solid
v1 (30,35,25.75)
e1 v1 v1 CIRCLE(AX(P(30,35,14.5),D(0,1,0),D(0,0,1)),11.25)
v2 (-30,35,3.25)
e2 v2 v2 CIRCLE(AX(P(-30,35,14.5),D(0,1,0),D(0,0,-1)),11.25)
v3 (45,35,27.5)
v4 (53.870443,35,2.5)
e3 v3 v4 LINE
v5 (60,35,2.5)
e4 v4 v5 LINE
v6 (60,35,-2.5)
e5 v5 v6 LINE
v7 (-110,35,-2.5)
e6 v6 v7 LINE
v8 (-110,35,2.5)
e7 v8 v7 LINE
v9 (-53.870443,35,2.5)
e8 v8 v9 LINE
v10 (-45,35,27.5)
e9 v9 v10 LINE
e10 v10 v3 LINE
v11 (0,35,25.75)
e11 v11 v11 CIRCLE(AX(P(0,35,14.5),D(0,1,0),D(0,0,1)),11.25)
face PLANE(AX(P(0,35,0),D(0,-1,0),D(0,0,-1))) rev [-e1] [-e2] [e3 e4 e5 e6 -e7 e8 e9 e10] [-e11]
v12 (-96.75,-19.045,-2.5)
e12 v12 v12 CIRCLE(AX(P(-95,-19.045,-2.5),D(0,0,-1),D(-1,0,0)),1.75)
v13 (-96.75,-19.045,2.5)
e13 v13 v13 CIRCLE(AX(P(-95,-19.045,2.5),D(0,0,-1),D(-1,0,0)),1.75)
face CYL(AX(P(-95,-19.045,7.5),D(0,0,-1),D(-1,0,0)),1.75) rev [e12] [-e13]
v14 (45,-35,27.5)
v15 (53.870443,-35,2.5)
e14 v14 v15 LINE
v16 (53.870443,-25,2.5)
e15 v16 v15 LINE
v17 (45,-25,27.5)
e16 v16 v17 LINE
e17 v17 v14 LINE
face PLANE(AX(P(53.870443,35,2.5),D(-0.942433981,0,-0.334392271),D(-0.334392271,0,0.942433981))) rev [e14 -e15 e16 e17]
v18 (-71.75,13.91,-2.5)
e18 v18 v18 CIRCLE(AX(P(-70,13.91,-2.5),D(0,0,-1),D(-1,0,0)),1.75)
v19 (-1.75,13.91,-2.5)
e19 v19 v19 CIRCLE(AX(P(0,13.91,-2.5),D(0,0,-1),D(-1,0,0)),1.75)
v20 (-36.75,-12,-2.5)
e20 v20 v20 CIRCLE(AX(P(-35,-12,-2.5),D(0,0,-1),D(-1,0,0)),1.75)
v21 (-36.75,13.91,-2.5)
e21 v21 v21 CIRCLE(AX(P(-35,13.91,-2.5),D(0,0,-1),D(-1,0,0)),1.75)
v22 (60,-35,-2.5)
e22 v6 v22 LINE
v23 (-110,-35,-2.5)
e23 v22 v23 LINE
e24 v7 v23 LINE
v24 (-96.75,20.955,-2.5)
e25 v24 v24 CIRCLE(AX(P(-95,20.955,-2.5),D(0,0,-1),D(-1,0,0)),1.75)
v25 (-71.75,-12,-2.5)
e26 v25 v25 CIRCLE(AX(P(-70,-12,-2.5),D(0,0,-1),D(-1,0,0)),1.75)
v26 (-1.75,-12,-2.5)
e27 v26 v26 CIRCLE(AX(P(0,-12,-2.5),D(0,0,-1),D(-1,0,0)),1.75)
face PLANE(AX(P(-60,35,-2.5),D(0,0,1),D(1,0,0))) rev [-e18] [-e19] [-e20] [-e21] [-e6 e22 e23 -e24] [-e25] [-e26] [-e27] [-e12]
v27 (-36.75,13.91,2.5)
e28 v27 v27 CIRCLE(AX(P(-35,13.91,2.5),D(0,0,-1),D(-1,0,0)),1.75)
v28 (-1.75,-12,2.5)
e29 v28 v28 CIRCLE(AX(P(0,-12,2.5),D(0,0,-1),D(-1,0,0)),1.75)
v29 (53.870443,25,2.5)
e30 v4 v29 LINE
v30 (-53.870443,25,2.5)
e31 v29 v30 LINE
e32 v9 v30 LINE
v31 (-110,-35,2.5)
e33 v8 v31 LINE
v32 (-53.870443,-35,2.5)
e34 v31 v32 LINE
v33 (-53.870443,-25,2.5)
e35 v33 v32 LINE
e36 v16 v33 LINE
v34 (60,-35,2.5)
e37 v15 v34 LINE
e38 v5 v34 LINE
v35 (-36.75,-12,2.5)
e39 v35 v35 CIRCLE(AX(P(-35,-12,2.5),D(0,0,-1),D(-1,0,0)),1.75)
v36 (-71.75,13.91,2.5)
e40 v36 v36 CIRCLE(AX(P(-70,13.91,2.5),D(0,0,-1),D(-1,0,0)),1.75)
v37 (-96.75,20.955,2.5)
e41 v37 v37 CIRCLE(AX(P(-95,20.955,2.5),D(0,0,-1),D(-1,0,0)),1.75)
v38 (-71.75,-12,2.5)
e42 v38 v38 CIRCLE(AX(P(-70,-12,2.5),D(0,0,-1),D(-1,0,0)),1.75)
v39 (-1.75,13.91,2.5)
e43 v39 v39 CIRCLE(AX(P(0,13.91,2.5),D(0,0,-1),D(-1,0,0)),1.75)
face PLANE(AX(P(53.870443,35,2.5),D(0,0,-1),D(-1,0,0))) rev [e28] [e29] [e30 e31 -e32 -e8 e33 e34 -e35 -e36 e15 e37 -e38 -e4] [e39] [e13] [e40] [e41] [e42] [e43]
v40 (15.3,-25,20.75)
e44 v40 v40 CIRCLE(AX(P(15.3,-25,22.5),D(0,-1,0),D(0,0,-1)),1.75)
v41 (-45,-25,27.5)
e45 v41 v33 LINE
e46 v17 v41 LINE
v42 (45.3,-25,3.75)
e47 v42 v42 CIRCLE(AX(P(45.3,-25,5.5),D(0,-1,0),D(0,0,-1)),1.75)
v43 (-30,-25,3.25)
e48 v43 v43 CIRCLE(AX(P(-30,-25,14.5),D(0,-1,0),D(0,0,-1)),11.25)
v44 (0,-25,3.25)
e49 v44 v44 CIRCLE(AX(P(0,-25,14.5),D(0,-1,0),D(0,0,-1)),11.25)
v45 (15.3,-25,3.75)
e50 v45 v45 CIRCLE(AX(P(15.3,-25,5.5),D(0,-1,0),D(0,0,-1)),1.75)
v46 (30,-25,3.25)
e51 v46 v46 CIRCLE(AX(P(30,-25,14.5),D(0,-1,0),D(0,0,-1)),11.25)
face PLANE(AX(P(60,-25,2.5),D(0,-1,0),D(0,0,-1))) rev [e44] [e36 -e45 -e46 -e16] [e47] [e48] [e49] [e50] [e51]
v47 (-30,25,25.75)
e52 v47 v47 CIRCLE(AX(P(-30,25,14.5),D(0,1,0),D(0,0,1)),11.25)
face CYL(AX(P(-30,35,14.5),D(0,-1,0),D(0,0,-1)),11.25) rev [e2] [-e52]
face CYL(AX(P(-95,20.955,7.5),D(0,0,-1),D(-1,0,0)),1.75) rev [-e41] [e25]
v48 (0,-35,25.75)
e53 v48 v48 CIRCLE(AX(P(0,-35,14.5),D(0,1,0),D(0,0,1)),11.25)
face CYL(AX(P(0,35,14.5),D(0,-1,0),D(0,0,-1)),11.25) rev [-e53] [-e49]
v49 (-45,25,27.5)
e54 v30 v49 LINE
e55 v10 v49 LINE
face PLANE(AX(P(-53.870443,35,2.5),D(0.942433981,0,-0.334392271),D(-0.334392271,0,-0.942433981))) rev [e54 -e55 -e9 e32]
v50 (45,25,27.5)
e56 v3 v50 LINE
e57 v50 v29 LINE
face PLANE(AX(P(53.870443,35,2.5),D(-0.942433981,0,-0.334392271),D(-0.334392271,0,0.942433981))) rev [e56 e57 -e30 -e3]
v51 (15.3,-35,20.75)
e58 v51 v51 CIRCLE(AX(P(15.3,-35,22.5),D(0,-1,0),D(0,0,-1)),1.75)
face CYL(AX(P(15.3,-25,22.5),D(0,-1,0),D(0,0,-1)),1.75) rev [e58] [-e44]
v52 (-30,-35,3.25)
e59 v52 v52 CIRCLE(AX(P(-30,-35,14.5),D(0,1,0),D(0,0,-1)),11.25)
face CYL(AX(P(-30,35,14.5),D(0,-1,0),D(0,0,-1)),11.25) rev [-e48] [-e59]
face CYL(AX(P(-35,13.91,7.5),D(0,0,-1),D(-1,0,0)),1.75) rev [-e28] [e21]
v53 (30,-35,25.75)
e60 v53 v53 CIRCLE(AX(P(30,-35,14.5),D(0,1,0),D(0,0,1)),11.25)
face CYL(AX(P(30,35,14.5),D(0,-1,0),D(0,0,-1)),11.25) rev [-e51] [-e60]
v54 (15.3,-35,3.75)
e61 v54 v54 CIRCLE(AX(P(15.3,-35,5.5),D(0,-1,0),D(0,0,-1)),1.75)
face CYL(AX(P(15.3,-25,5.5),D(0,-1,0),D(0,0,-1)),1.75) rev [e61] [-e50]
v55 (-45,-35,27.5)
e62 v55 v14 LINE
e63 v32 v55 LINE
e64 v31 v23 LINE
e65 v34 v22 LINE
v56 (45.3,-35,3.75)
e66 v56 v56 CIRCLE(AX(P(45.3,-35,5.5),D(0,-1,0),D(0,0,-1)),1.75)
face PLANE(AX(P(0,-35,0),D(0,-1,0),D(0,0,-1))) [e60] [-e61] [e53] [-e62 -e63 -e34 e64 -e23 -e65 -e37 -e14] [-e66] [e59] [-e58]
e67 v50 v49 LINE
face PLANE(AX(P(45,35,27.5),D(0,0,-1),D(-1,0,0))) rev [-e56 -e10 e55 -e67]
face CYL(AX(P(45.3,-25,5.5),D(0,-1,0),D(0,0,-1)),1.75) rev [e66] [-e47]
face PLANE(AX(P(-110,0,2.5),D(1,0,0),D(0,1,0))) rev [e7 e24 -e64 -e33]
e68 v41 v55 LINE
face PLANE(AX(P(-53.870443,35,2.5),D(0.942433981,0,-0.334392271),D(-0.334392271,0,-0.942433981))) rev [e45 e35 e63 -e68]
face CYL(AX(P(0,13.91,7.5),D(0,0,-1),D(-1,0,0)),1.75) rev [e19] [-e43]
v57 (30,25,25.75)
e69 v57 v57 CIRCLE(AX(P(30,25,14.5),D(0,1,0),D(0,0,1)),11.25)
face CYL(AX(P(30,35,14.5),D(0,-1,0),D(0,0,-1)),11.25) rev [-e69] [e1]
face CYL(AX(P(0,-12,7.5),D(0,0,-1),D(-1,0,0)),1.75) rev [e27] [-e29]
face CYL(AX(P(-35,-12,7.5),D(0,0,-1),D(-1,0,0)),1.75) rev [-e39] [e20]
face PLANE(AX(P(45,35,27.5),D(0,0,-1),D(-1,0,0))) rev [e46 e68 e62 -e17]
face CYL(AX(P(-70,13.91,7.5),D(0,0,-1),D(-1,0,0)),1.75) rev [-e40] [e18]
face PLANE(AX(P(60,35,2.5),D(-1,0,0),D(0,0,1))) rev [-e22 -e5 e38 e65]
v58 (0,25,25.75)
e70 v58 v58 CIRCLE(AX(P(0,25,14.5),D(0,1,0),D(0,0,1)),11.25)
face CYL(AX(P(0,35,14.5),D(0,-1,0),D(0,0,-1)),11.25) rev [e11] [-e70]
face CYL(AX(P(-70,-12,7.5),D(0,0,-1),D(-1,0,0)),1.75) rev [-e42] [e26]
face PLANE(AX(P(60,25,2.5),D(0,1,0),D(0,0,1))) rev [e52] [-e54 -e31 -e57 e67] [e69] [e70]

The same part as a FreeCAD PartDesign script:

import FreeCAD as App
import Part
import Sketcher
Q = App.Units.Quantity


def add_polygon(sketch, points):
    """Adds a closed chain of lines whose ends are joined by coincident constraints."""
    first, n = sketch.GeometryCount, len(points)
    for a, b in zip(points, points[1:] + points[:1]):
        sketch.addGeometry(Part.LineSegment(App.Vector(*a, 0), App.Vector(*b, 0)), False)
    for i in range(n):
        sketch.addConstraint(Sketcher.Constraint("Coincident", first + i, 2, first + (i + 1) % n, 1))

doc = App.newDocument("Part")
body = doc.addObject("PartDesign::Body", "Body")

# Sketch on XZ plane
sketch1 = body.newObject("Sketcher::SketchObject", "Sketch")
sketch1.AttachmentSupport = (doc.getObject("XZ_Plane"), [""])
sketch1.MapMode = "FlatFace"
add_polygon(sketch1, [(-54, 2), (-45, 28), (45, 28), (54, 2), (60, 2), (60, -2), (-80, -2), (-80, 2)])  # lines 0-7
sketch1.addGeometry(Part.Circle(App.Vector(-30, 14, 0), App.Vector(0, 0, 1), 11), False)  # 8
sketch1.addGeometry(Part.Circle(App.Vector(0, 14, 0), App.Vector(0, 0, 1), 11), False)  # 9
sketch1.addGeometry(Part.Circle(App.Vector(30, 14, 0), App.Vector(0, 0, 1), 11), False)  # 10
sketch1.addConstraint([
    Sketcher.Constraint("Horizontal", 1),
    Sketcher.Constraint("Horizontal", 3),
    Sketcher.Constraint("Vertical", 4),
    Sketcher.Constraint("Horizontal", 5),
    Sketcher.Constraint("Vertical", 6),
    Sketcher.Constraint("Horizontal", 7),
    Sketcher.Constraint("Equal", 8, 9),
    Sketcher.Constraint("Equal", 9, 10),
    Sketcher.Constraint("Symmetric", 8, 3, 10, 3, -2),
    Sketcher.Constraint("Symmetric", 2, 2, 7, 2, -2),
    Sketcher.Constraint("PointOnObject", 9, 3, -2),
    Sketcher.Constraint("Horizontal", 8, 3, 9, 3),
    Sketcher.Constraint("Equal", 0, 2),
    Sketcher.Constraint("Diameter", 8, Q("22.5 mm")),
    Sketcher.Constraint("DistanceX", 1, 1, 1, 2, Q("90 mm")),
    Sketcher.Constraint("DistanceX", 5, 2, 5, 1, Q("140 mm")),
    Sketcher.Constraint("DistanceY", 4, 2, 4, 1, Q("5 mm")),
    Sketcher.Constraint("DistanceX", 8, 3, -1, 1, Q("30 mm")),
    Sketcher.Constraint("DistanceX", -1, 1, 3, 2, Q("60 mm")),
    Sketcher.Constraint("DistanceY", 8, 3, 0, 2, Q("13 mm")),
    Sketcher.Constraint("DistanceY", 2, 2, 1, 2, Q("25 mm")),
    Sketcher.Constraint("DistanceY", -1, 1, 8, 3, Q("14.5 mm")),
    Sketcher.Constraint("DistanceX", 3, 1, 3, 2, Q("6.129557 mm")),
])
pad1 = body.newObject("PartDesign::Pad", "Pad")
pad1.Profile = sketch1
pad1.Length = 70
pad1.Midplane = True

# Sketch on YZ plane
sketch2 = body.newObject("Sketcher::SketchObject", "Sketch001")
sketch2.AttachmentSupport = (doc.getObject("YZ_Plane"), [""])
sketch2.MapMode = "FlatFace"
sketch2.AttachmentOffset = App.Placement(App.Vector(0, 0, -80), App.Rotation())
add_polygon(sketch2, [(25, 2), (-25, 2), (-25, 28), (25, 28)])  # lines 0-3
sketch2.addConstraint([
    Sketcher.Constraint("Horizontal", 0),
    Sketcher.Constraint("Vertical", 1),
    Sketcher.Constraint("Horizontal", 2),
    Sketcher.Constraint("Vertical", 3),
    Sketcher.Constraint("DistanceX", 0, 2, 0, 1, Q("50 mm")),
    Sketcher.Constraint("DistanceY", 1, 1, 1, 2, Q("25 mm")),
    Sketcher.Constraint("DistanceX", 0, 2, -1, 1, Q("25 mm")),
    Sketcher.Constraint("DistanceY", -1, 1, 0, 2, Q("2.5 mm")),
])
pocket1 = body.newObject("PartDesign::Pocket", "Pocket")
pocket1.Profile = sketch2
pocket1.Type = "ThroughAll"
pocket1.Reversed = True

# Sketch on XY plane
sketch3 = body.newObject("Sketcher::SketchObject", "Sketch002")
sketch3.AttachmentSupport = (doc.getObject("XY_Plane"), [""])
sketch3.MapMode = "FlatFace"
sketch3.AttachmentOffset = App.Placement(App.Vector(0, 0, -2.5), App.Rotation())
add_polygon(sketch3, [(-80, 35), (-80, -35), (-110, -35), (-110, 35)])  # lines 0-3
sketch3.addConstraint([
    Sketcher.Constraint("Vertical", 0),
    Sketcher.Constraint("Horizontal", 1),
    Sketcher.Constraint("Vertical", 2),
    Sketcher.Constraint("Horizontal", 3),
    Sketcher.Constraint("DistanceX", 1, 2, 1, 1, Q("30 mm")),
    Sketcher.Constraint("DistanceY", 0, 2, 0, 1, Q("70 mm")),
    Sketcher.Constraint("DistanceX", 0, 2, -1, 1, Q("80 mm")),
    Sketcher.Constraint("DistanceY", 0, 2, -1, 1, Q("35 mm")),
])
pad2 = body.newObject("PartDesign::Pad", "Pad001")
pad2.Profile = sketch3
pad2.Length = 5

# Sketch on XZ plane
sketch4 = body.newObject("Sketcher::SketchObject", "Sketch003")
sketch4.AttachmentSupport = (doc.getObject("XZ_Plane"), [""])
sketch4.MapMode = "FlatFace"
sketch4.AttachmentOffset = App.Placement(App.Vector(0, 0, 35), App.Rotation())
sketch4.addGeometry([
    Part.Circle(App.Vector(45.3, 5.5, 0), App.Vector(0, 0, 1), 1.8),
    Part.Circle(App.Vector(15.3, 22.5, 0), App.Vector(0, 0, 1), 1.8),
    Part.Circle(App.Vector(15.3, 5.5, 0), App.Vector(0, 0, 1), 1.8),
], False)
sketch4.addConstraint([
    Sketcher.Constraint("Equal", 0, 1),
    Sketcher.Constraint("Equal", 1, 2),
    Sketcher.Constraint("Horizontal", 0, 3, 2, 3),
    Sketcher.Constraint("Vertical", 1, 3, 2, 3),
    Sketcher.Constraint("Diameter", 0, Q("3.5 mm")),
    Sketcher.Constraint("DistanceX", 1, 3, 0, 3, Q("30 mm")),
    Sketcher.Constraint("DistanceY", 0, 3, 1, 3, Q("17 mm")),
    Sketcher.Constraint("DistanceX", -1, 1, 0, 3, Q("45.3 mm")),
    Sketcher.Constraint("DistanceY", -1, 1, 0, 3, Q("5.5 mm")),
])
pocket2 = body.newObject("PartDesign::Pocket", "Pocket001")
pocket2.Profile = sketch4
pocket2.Length = 10

# Sketch on XY plane
sketch5 = body.newObject("Sketcher::SketchObject", "Sketch004")
sketch5.AttachmentSupport = (doc.getObject("XY_Plane"), [""])
sketch5.MapMode = "FlatFace"
sketch5.AttachmentOffset = App.Placement(App.Vector(0, 0, -2.5), App.Rotation())
sketch5.addGeometry([
    Part.Circle(App.Vector(0, -12, 0), App.Vector(0, 0, 1), 1.8),  # 0
    Part.Circle(App.Vector(-35, -12, 0), App.Vector(0, 0, 1), 1.8),  # 1
    Part.Circle(App.Vector(-70, -12, 0), App.Vector(0, 0, 1), 1.8),  # 2
    Part.Circle(App.Vector(-35, 13.9, 0), App.Vector(0, 0, 1), 1.8),  # 3
    Part.Circle(App.Vector(-70, 13.9, 0), App.Vector(0, 0, 1), 1.8),  # 4
    Part.Circle(App.Vector(0, 13.9, 0), App.Vector(0, 0, 1), 1.8),  # 5
    Part.Circle(App.Vector(-95, 21, 0), App.Vector(0, 0, 1), 1.8),  # 6
    Part.Circle(App.Vector(-95, -19, 0), App.Vector(0, 0, 1), 1.8),  # 7
], False)
sketch5.addConstraint([
    Sketcher.Constraint("Equal", 0, 1),
    Sketcher.Constraint("Equal", 1, 2),
    Sketcher.Constraint("Equal", 2, 3),
    Sketcher.Constraint("Equal", 3, 4),
    Sketcher.Constraint("Equal", 4, 5),
    Sketcher.Constraint("Equal", 5, 6),
    Sketcher.Constraint("Equal", 6, 7),
    Sketcher.Constraint("PointOnObject", 0, 3, -2),
    Sketcher.Constraint("PointOnObject", 5, 3, -2),
    Sketcher.Constraint("Horizontal", 0, 3, 1, 3),
    Sketcher.Constraint("Horizontal", 1, 3, 2, 3),
    Sketcher.Constraint("Horizontal", 3, 3, 4, 3),
    Sketcher.Constraint("Horizontal", 4, 3, 5, 3),
    Sketcher.Constraint("Vertical", 1, 3, 3, 3),
    Sketcher.Constraint("Vertical", 2, 3, 4, 3),
    Sketcher.Constraint("Vertical", 6, 3, 7, 3),
    Sketcher.Constraint("Diameter", 0, Q("3.5 mm")),
    Sketcher.Constraint("DistanceY", 0, 3, -1, 1, Q("12 mm")),
    Sketcher.Constraint("DistanceX", 1, 3, -1, 1, Q("35 mm")),
    Sketcher.Constraint("DistanceX", 2, 3, -1, 1, Q("70 mm")),
    Sketcher.Constraint("DistanceX", 6, 3, -1, 1, Q("95 mm")),
    Sketcher.Constraint("DistanceY", 7, 3, 6, 3, Q("40 mm")),
    Sketcher.Constraint("DistanceY", -1, 1, 3, 3, Q("13.91 mm")),
    Sketcher.Constraint("DistanceY", -1, 1, 6, 3, Q("20.955 mm")),
])
pocket3 = body.newObject("PartDesign::Pocket", "Pocket002")
pocket3.Profile = sketch5
pocket3.Length = 10
pocket3.Reversed = True

doc.recompute()
